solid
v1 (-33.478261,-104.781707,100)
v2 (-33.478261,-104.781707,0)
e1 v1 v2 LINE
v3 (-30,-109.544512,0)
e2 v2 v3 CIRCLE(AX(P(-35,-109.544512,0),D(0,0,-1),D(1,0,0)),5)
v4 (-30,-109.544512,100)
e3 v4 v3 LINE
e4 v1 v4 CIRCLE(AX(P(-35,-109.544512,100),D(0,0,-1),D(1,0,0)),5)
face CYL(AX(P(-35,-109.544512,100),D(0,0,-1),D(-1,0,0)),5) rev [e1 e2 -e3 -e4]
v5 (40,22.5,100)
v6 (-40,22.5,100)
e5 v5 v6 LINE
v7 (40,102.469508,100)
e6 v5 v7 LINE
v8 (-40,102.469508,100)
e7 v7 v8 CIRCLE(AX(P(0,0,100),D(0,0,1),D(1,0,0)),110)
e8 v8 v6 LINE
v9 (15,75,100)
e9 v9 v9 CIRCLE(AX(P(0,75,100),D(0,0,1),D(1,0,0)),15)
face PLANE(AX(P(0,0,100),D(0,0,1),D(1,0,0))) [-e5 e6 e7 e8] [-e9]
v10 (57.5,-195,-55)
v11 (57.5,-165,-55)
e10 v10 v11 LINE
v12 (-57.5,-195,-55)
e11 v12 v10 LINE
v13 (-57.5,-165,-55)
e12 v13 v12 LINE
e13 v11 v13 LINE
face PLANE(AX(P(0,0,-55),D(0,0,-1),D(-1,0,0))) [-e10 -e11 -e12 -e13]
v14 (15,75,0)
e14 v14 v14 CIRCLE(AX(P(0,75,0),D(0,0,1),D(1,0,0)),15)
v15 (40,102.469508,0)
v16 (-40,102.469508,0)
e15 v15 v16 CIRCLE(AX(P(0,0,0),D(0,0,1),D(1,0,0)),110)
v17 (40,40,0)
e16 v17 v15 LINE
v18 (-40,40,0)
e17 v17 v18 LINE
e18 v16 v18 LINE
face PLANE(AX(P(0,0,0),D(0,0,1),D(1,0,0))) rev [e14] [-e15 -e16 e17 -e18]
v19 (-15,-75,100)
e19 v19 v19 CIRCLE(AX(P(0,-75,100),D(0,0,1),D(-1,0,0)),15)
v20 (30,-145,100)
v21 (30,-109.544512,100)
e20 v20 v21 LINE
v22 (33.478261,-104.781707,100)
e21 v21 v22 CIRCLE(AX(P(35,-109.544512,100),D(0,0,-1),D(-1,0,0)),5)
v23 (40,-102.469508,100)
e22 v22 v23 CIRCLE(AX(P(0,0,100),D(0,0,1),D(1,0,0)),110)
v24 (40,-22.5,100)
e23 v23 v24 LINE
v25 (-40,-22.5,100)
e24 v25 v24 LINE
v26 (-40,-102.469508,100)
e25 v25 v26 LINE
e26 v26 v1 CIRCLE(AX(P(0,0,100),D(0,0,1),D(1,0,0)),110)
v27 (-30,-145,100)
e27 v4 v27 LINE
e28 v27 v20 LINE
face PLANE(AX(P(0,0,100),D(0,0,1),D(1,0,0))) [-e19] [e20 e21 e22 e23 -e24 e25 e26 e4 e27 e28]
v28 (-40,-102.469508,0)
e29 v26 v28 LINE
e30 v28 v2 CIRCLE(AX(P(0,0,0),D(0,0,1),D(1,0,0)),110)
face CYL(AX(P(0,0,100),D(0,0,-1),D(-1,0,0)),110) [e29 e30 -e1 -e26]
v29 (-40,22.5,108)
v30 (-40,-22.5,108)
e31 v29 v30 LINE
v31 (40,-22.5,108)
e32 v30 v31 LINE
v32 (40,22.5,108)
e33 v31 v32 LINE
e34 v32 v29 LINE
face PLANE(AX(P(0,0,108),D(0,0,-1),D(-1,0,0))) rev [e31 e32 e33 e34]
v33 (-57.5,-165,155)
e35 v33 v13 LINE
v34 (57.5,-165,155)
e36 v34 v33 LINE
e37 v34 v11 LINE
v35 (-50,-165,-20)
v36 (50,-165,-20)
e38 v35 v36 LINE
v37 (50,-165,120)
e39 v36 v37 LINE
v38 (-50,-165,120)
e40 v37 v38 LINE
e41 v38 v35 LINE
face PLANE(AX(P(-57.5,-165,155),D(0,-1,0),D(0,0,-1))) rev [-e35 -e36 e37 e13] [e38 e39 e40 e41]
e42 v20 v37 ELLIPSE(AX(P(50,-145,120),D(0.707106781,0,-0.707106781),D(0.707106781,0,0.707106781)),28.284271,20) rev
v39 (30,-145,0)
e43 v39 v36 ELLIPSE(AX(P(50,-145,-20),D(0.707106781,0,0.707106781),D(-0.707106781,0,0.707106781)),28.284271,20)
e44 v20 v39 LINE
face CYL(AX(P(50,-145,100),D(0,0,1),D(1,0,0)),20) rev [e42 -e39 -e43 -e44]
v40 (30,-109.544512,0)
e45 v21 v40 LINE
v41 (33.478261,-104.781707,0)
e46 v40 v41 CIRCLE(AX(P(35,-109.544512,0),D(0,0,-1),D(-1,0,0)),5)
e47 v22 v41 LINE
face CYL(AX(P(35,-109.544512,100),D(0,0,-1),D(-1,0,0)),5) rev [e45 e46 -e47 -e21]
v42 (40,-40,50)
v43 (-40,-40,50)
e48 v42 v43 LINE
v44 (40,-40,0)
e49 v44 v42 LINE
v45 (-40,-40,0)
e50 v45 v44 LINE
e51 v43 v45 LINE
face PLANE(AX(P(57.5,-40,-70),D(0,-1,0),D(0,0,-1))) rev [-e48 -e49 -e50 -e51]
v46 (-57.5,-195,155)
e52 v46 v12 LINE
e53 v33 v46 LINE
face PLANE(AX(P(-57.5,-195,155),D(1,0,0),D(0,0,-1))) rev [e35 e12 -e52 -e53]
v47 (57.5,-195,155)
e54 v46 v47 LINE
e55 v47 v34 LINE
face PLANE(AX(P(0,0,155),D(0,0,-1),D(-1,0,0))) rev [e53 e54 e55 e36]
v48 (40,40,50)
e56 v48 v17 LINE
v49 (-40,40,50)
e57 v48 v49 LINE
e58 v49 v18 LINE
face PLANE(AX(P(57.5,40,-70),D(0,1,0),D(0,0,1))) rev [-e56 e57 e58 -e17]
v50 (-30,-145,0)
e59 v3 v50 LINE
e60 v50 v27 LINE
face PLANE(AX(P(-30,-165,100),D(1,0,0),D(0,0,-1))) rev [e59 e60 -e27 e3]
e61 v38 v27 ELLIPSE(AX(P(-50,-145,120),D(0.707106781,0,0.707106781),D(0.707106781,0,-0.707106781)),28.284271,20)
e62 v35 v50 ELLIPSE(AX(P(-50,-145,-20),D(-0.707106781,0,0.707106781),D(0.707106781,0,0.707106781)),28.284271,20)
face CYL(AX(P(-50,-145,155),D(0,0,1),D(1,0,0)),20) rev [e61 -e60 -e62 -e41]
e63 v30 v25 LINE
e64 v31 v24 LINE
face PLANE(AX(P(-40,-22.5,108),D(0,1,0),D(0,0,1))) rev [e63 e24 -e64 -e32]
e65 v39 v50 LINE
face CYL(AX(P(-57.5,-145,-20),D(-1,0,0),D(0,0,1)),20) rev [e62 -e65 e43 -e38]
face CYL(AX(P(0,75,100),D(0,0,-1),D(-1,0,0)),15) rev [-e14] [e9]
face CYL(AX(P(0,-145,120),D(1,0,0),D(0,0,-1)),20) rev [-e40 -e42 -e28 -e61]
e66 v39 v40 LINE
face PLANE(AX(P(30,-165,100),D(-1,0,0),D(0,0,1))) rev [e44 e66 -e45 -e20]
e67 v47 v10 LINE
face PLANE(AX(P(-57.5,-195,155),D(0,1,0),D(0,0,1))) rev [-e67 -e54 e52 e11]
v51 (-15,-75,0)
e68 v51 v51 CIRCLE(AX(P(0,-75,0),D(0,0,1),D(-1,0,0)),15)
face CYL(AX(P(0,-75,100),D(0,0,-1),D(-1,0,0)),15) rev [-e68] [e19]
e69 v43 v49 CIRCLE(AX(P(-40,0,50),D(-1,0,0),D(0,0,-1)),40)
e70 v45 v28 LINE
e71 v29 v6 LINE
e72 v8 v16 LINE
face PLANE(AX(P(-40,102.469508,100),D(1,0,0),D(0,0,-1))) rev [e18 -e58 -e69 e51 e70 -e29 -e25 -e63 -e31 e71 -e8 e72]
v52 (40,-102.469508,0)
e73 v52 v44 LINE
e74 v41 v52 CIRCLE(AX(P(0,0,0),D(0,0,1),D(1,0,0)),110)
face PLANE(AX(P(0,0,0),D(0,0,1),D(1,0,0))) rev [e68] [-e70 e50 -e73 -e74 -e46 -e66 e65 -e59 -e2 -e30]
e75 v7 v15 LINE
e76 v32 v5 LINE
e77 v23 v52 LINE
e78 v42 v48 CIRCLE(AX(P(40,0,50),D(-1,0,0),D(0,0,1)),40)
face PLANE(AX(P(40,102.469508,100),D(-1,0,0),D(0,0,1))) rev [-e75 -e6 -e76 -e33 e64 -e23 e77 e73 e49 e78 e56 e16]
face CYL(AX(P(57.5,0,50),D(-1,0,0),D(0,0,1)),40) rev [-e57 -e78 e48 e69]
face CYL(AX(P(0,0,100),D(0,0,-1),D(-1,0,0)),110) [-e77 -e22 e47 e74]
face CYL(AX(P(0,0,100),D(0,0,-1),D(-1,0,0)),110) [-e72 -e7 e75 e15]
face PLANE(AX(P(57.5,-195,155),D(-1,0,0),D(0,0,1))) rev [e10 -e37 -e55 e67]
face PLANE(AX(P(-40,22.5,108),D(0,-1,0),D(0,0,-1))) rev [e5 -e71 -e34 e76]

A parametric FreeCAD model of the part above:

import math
import FreeCAD as App
import Part
import Sketcher


def edges_at(feature, points):
    """Names of the edges that pass closest to the given points."""
    edges = feature.Shape.Edges
    near = lambda p: min(range(len(edges)), key=lambda i: edges[i].distToShape(Part.Vertex(*p))[0])
    return sorted({f"Edge{near(p) + 1}" for p in points})

doc = App.newDocument("Part")
body = doc.addObject("PartDesign::Body", "Body")

sketch1 = body.newObject("Sketcher::SketchObject", "Sketch")
sketch1.AttachmentSupport = (doc.getObject("XY_Plane"), [""])
sketch1.MapMode = "FlatFace"
sketch1.addGeometry(Part.LineSegment(App.Vector(-40, 102, 0), App.Vector(-40, -102, 0)), False)
sketch1.addGeometry(Part.ArcOfCircle(Part.Circle(App.Vector(0, 0, 0), App.Vector(0, 0, 1), 110), math.radians(-111.32), math.radians(-107.72)), False)
sketch1.addGeometry(Part.ArcOfCircle(Part.Circle(App.Vector(-35, -110, 0), App.Vector(0, 0, 1), 5), math.radians(0), math.radians(72)), False)
sketch1.addGeometry(Part.LineSegment(App.Vector(-30, -110, 0), App.Vector(-30, -165, 0)), False)
sketch1.addGeometry(Part.LineSegment(App.Vector(-30, -165, 0), App.Vector(30, -165, 0)), False)
sketch1.addGeometry(Part.LineSegment(App.Vector(30, -165, 0), App.Vector(30, -110, 0)), False)
sketch1.addGeometry(Part.ArcOfCircle(Part.Circle(App.Vector(35, -110, 0), App.Vector(0, 0, 1), 5), math.radians(108), math.radians(180)), False)
sketch1.addGeometry(Part.ArcOfCircle(Part.Circle(App.Vector(0, 0, 0), App.Vector(0, 0, 1), 110), math.radians(-72.28), math.radians(-68.68)), False)
sketch1.addGeometry(Part.LineSegment(App.Vector(40, -102, 0), App.Vector(40, 102, 0)), False)
sketch1.addGeometry(Part.ArcOfCircle(Part.Circle(App.Vector(0, 0, 0), App.Vector(0, 0, 1), 110), math.radians(69), math.radians(111)), False)
sketch1.addGeometry(Part.Circle(App.Vector(0, -75, 0), App.Vector(0, 0, 1), 15), False)
sketch1.addGeometry(Part.Circle(App.Vector(0, 75, 0), App.Vector(0, 0, 1), 15), False)
sketch1.addConstraint(Sketcher.Constraint("Coincident", 0, 2, 1, 1))
sketch1.addConstraint(Sketcher.Constraint("Tangent", 1, 2, 2, 2))
sketch1.addConstraint(Sketcher.Constraint("Tangent", 2, 1, 3, 1))
sketch1.addConstraint(Sketcher.Constraint("Coincident", 3, 2, 4, 1))
sketch1.addConstraint(Sketcher.Constraint("Coincident", 4, 2, 5, 1))
sketch1.addConstraint(Sketcher.Constraint("Tangent", 5, 2, 6, 2))
sketch1.addConstraint(Sketcher.Constraint("Tangent", 6, 1, 7, 1))
sketch1.addConstraint(Sketcher.Constraint("Coincident", 7, 2, 8, 1))
sketch1.addConstraint(Sketcher.Constraint("Coincident", 8, 2, 9, 1))
sketch1.addConstraint(Sketcher.Constraint("Coincident", 9, 2, 0, 1))
sketch1.addConstraint(Sketcher.Constraint("Vertical", 0))
sketch1.addConstraint(Sketcher.Constraint("Vertical", 3))
sketch1.addConstraint(Sketcher.Constraint("Horizontal", 4))
sketch1.addConstraint(Sketcher.Constraint("Vertical", 5))
sketch1.addConstraint(Sketcher.Constraint("Vertical", 8))
sketch1.addConstraint(Sketcher.Constraint("Coincident", 1, 3, -1, 1))
sketch1.addConstraint(Sketcher.Constraint("Coincident", 7, 3, -1, 1))
sketch1.addConstraint(Sketcher.Constraint("Coincident", 9, 3, -1, 1))
sketch1.addConstraint(Sketcher.Constraint("Equal", 2, 6))
sketch1.addConstraint(Sketcher.Constraint("Equal", 1, 7))
sketch1.addConstraint(Sketcher.Constraint("Equal", 7, 9))
sketch1.addConstraint(Sketcher.Constraint("Equal", 10, 11))
sketch1.addConstraint(Sketcher.Constraint("Symmetric", 10, 3, 11, 3, -1, 1))
sketch1.addConstraint(Sketcher.Constraint("PointOnObject", 10, 3, -2))
sketch1.addConstraint(Sketcher.Constraint("Horizontal", 2, 3, 6, 3))
sketch1.addConstraint(Sketcher.Constraint("Horizontal", 0, 2, 7, 2))
sketch1.addConstraint(Sketcher.Constraint("Diameter", 10, 30.0))
sketch1.addConstraint(Sketcher.Constraint("Radius", 1, 110.000001))
sketch1.addConstraint(Sketcher.Constraint("Radius", 2, 5.0))
sketch1.addConstraint(Sketcher.Constraint("DistanceX", 4, 1, 4, 2, 60.0))
sketch1.addConstraint(Sketcher.Constraint("DistanceY", 10, 3, -1, 1, 75.0))
sketch1.addConstraint(Sketcher.Constraint("DistanceX", 0, 2, -1, 1, 40.0))
sketch1.addConstraint(Sketcher.Constraint("DistanceY", 3, 2, -1, 1, 165.0))
pad1 = body.newObject("PartDesign::Pad", "Pad")
pad1.Profile = sketch1
pad1.Length = 100

sketch2 = body.newObject("Sketcher::SketchObject", "Sketch001")
sketch2.AttachmentSupport = (doc.getObject("XY_Plane"), [""])
sketch2.MapMode = "FlatFace"
sketch2.AttachmentOffset = App.Placement(App.Vector(0, 0, 50), App.Rotation())
sketch2.addGeometry(Part.LineSegment(App.Vector(-58, -165, 0), App.Vector(-58, -195, 0)), False)
sketch2.addGeometry(Part.LineSegment(App.Vector(-58, -195, 0), App.Vector(58, -195, 0)), False)
sketch2.addGeometry(Part.LineSegment(App.Vector(58, -195, 0), App.Vector(58, -165, 0)), False)
sketch2.addGeometry(Part.LineSegment(App.Vector(58, -165, 0), App.Vector(-58, -165, 0)), False)
sketch2.addConstraint(Sketcher.Constraint("Coincident", 0, 2, 1, 1))
sketch2.addConstraint(Sketcher.Constraint("Coincident", 1, 2, 2, 1))
sketch2.addConstraint(Sketcher.Constraint("Coincident", 2, 2, 3, 1))
sketch2.addConstraint(Sketcher.Constraint("Coincident", 3, 2, 0, 1))
sketch2.addConstraint(Sketcher.Constraint("Vertical", 0))
sketch2.addConstraint(Sketcher.Constraint("Horizontal", 1))
sketch2.addConstraint(Sketcher.Constraint("Vertical", 2))
sketch2.addConstraint(Sketcher.Constraint("Horizontal", 3))
sketch2.addConstraint(Sketcher.Constraint("DistanceX", 1, 1, 1, 2, 115.0))
sketch2.addConstraint(Sketcher.Constraint("DistanceY", 0, 2, 0, 1, 30.0))
sketch2.addConstraint(Sketcher.Constraint("DistanceY", 0, 2, -1, 1, 195.0))
sketch2.addConstraint(Sketcher.Constraint("DistanceX", 0, 2, -1, 1, 57.5))
pad2 = body.newObject("PartDesign::Pad", "Pad001")
pad2.Profile = sketch2
pad2.Length = 210
pad2.Midplane = True
doc.recompute()

fillet = body.newObject("PartDesign::Fillet", "Fillet")
fillet.Base = (pad2, edges_at(pad2, [
    (0, -165, 0),
    (0, -165, 100),
    (30, -165, 50),
    (-30, -165, 50),
]))
fillet.Radius = 20

sketch3 = body.newObject("Sketcher::SketchObject", "Sketch002")
sketch3.AttachmentSupport = (doc.getObject("XY_Plane"), [""])
sketch3.MapMode = "FlatFace"
sketch3.AttachmentOffset = App.Placement(App.Vector(0, 0, 100), App.Rotation())
sketch3.addGeometry(Part.LineSegment(App.Vector(-40, 22, 0), App.Vector(-40, -22, 0)), False)
sketch3.addGeometry(Part.LineSegment(App.Vector(-40, -22, 0), App.Vector(40, -22, 0)), False)
sketch3.addGeometry(Part.LineSegment(App.Vector(40, -22, 0), App.Vector(40, 22, 0)), False)
sketch3.addGeometry(Part.LineSegment(App.Vector(40, 22, 0), App.Vector(-40, 22, 0)), False)
sketch3.addConstraint(Sketcher.Constraint("Coincident", 0, 2, 1, 1))
sketch3.addConstraint(Sketcher.Constraint("Coincident", 1, 2, 2, 1))
sketch3.addConstraint(Sketcher.Constraint("Coincident", 2, 2, 3, 1))
sketch3.addConstraint(Sketcher.Constraint("Coincident", 3, 2, 0, 1))
sketch3.addConstraint(Sketcher.Constraint("Vertical", 0))
sketch3.addConstraint(Sketcher.Constraint("Horizontal", 1))
sketch3.addConstraint(Sketcher.Constraint("Vertical", 2))
sketch3.addConstraint(Sketcher.Constraint("Horizontal", 3))
sketch3.addConstraint(Sketcher.Constraint("Symmetric", 0, 2, 2, 2, -1, 1))
sketch3.addConstraint(Sketcher.Constraint("DistanceX", 1, 1, 1, 2, 80.0))
sketch3.addConstraint(Sketcher.Constraint("DistanceY", 0, 2, 0, 1, 45.0))
pad3 = body.newObject("PartDesign::Pad", "Pad002")
pad3.Profile = sketch3
pad3.Length = 8

sketch4 = body.newObject("Sketcher::SketchObject", "Sketch003")
sketch4.AttachmentSupport = (doc.getObject("YZ_Plane"), [""])
sketch4.MapMode = "FlatFace"
sketch4.AttachmentOffset = App.Placement(App.Vector(0, 0, -40), App.Rotation())
sketch4.addGeometry(Part.LineSegment(App.Vector(-40, -70, 0), App.Vector(-40, 50, 0)), False)
sketch4.addGeometry(Part.ArcOfCircle(Part.Circle(App.Vector(0, 50, 0), App.Vector(0, 0, 1), 40), math.radians(0), math.radians(180)), False)
sketch4.addGeometry(Part.LineSegment(App.Vector(40, 50, 0), App.Vector(40, -70, 0)), False)
sketch4.addGeometry(Part.LineSegment(App.Vector(40, -70, 0), App.Vector(-40, -70, 0)), False)
sketch4.addConstraint(Sketcher.Constraint("Tangent", 0, 2, 1, 2))
sketch4.addConstraint(Sketcher.Constraint("Tangent", 1, 1, 2, 1))
sketch4.addConstraint(Sketcher.Constraint("Coincident", 2, 2, 3, 1))
sketch4.addConstraint(Sketcher.Constraint("Coincident", 3, 2, 0, 1))
sketch4.addConstraint(Sketcher.Constraint("Vertical", 0))
sketch4.addConstraint(Sketcher.Constraint("Vertical", 2))
sketch4.addConstraint(Sketcher.Constraint("Horizontal", 3))
sketch4.addConstraint(Sketcher.Constraint("PointOnObject", 1, 3, -2))
sketch4.addConstraint(Sketcher.Constraint("Radius", 1, 40.0))
sketch4.addConstraint(Sketcher.Constraint("DistanceY", 0, 1, 0, 2, 120.0))
sketch4.addConstraint(Sketcher.Constraint("DistanceY", -1, 1, 1, 3, 50.0))
pocket1 = body.newObject("PartDesign::Pocket", "Pocket")
pocket1.Profile = sketch4
pocket1.Type = "ThroughAll"
pocket1.Reversed = True

doc.recompute()
